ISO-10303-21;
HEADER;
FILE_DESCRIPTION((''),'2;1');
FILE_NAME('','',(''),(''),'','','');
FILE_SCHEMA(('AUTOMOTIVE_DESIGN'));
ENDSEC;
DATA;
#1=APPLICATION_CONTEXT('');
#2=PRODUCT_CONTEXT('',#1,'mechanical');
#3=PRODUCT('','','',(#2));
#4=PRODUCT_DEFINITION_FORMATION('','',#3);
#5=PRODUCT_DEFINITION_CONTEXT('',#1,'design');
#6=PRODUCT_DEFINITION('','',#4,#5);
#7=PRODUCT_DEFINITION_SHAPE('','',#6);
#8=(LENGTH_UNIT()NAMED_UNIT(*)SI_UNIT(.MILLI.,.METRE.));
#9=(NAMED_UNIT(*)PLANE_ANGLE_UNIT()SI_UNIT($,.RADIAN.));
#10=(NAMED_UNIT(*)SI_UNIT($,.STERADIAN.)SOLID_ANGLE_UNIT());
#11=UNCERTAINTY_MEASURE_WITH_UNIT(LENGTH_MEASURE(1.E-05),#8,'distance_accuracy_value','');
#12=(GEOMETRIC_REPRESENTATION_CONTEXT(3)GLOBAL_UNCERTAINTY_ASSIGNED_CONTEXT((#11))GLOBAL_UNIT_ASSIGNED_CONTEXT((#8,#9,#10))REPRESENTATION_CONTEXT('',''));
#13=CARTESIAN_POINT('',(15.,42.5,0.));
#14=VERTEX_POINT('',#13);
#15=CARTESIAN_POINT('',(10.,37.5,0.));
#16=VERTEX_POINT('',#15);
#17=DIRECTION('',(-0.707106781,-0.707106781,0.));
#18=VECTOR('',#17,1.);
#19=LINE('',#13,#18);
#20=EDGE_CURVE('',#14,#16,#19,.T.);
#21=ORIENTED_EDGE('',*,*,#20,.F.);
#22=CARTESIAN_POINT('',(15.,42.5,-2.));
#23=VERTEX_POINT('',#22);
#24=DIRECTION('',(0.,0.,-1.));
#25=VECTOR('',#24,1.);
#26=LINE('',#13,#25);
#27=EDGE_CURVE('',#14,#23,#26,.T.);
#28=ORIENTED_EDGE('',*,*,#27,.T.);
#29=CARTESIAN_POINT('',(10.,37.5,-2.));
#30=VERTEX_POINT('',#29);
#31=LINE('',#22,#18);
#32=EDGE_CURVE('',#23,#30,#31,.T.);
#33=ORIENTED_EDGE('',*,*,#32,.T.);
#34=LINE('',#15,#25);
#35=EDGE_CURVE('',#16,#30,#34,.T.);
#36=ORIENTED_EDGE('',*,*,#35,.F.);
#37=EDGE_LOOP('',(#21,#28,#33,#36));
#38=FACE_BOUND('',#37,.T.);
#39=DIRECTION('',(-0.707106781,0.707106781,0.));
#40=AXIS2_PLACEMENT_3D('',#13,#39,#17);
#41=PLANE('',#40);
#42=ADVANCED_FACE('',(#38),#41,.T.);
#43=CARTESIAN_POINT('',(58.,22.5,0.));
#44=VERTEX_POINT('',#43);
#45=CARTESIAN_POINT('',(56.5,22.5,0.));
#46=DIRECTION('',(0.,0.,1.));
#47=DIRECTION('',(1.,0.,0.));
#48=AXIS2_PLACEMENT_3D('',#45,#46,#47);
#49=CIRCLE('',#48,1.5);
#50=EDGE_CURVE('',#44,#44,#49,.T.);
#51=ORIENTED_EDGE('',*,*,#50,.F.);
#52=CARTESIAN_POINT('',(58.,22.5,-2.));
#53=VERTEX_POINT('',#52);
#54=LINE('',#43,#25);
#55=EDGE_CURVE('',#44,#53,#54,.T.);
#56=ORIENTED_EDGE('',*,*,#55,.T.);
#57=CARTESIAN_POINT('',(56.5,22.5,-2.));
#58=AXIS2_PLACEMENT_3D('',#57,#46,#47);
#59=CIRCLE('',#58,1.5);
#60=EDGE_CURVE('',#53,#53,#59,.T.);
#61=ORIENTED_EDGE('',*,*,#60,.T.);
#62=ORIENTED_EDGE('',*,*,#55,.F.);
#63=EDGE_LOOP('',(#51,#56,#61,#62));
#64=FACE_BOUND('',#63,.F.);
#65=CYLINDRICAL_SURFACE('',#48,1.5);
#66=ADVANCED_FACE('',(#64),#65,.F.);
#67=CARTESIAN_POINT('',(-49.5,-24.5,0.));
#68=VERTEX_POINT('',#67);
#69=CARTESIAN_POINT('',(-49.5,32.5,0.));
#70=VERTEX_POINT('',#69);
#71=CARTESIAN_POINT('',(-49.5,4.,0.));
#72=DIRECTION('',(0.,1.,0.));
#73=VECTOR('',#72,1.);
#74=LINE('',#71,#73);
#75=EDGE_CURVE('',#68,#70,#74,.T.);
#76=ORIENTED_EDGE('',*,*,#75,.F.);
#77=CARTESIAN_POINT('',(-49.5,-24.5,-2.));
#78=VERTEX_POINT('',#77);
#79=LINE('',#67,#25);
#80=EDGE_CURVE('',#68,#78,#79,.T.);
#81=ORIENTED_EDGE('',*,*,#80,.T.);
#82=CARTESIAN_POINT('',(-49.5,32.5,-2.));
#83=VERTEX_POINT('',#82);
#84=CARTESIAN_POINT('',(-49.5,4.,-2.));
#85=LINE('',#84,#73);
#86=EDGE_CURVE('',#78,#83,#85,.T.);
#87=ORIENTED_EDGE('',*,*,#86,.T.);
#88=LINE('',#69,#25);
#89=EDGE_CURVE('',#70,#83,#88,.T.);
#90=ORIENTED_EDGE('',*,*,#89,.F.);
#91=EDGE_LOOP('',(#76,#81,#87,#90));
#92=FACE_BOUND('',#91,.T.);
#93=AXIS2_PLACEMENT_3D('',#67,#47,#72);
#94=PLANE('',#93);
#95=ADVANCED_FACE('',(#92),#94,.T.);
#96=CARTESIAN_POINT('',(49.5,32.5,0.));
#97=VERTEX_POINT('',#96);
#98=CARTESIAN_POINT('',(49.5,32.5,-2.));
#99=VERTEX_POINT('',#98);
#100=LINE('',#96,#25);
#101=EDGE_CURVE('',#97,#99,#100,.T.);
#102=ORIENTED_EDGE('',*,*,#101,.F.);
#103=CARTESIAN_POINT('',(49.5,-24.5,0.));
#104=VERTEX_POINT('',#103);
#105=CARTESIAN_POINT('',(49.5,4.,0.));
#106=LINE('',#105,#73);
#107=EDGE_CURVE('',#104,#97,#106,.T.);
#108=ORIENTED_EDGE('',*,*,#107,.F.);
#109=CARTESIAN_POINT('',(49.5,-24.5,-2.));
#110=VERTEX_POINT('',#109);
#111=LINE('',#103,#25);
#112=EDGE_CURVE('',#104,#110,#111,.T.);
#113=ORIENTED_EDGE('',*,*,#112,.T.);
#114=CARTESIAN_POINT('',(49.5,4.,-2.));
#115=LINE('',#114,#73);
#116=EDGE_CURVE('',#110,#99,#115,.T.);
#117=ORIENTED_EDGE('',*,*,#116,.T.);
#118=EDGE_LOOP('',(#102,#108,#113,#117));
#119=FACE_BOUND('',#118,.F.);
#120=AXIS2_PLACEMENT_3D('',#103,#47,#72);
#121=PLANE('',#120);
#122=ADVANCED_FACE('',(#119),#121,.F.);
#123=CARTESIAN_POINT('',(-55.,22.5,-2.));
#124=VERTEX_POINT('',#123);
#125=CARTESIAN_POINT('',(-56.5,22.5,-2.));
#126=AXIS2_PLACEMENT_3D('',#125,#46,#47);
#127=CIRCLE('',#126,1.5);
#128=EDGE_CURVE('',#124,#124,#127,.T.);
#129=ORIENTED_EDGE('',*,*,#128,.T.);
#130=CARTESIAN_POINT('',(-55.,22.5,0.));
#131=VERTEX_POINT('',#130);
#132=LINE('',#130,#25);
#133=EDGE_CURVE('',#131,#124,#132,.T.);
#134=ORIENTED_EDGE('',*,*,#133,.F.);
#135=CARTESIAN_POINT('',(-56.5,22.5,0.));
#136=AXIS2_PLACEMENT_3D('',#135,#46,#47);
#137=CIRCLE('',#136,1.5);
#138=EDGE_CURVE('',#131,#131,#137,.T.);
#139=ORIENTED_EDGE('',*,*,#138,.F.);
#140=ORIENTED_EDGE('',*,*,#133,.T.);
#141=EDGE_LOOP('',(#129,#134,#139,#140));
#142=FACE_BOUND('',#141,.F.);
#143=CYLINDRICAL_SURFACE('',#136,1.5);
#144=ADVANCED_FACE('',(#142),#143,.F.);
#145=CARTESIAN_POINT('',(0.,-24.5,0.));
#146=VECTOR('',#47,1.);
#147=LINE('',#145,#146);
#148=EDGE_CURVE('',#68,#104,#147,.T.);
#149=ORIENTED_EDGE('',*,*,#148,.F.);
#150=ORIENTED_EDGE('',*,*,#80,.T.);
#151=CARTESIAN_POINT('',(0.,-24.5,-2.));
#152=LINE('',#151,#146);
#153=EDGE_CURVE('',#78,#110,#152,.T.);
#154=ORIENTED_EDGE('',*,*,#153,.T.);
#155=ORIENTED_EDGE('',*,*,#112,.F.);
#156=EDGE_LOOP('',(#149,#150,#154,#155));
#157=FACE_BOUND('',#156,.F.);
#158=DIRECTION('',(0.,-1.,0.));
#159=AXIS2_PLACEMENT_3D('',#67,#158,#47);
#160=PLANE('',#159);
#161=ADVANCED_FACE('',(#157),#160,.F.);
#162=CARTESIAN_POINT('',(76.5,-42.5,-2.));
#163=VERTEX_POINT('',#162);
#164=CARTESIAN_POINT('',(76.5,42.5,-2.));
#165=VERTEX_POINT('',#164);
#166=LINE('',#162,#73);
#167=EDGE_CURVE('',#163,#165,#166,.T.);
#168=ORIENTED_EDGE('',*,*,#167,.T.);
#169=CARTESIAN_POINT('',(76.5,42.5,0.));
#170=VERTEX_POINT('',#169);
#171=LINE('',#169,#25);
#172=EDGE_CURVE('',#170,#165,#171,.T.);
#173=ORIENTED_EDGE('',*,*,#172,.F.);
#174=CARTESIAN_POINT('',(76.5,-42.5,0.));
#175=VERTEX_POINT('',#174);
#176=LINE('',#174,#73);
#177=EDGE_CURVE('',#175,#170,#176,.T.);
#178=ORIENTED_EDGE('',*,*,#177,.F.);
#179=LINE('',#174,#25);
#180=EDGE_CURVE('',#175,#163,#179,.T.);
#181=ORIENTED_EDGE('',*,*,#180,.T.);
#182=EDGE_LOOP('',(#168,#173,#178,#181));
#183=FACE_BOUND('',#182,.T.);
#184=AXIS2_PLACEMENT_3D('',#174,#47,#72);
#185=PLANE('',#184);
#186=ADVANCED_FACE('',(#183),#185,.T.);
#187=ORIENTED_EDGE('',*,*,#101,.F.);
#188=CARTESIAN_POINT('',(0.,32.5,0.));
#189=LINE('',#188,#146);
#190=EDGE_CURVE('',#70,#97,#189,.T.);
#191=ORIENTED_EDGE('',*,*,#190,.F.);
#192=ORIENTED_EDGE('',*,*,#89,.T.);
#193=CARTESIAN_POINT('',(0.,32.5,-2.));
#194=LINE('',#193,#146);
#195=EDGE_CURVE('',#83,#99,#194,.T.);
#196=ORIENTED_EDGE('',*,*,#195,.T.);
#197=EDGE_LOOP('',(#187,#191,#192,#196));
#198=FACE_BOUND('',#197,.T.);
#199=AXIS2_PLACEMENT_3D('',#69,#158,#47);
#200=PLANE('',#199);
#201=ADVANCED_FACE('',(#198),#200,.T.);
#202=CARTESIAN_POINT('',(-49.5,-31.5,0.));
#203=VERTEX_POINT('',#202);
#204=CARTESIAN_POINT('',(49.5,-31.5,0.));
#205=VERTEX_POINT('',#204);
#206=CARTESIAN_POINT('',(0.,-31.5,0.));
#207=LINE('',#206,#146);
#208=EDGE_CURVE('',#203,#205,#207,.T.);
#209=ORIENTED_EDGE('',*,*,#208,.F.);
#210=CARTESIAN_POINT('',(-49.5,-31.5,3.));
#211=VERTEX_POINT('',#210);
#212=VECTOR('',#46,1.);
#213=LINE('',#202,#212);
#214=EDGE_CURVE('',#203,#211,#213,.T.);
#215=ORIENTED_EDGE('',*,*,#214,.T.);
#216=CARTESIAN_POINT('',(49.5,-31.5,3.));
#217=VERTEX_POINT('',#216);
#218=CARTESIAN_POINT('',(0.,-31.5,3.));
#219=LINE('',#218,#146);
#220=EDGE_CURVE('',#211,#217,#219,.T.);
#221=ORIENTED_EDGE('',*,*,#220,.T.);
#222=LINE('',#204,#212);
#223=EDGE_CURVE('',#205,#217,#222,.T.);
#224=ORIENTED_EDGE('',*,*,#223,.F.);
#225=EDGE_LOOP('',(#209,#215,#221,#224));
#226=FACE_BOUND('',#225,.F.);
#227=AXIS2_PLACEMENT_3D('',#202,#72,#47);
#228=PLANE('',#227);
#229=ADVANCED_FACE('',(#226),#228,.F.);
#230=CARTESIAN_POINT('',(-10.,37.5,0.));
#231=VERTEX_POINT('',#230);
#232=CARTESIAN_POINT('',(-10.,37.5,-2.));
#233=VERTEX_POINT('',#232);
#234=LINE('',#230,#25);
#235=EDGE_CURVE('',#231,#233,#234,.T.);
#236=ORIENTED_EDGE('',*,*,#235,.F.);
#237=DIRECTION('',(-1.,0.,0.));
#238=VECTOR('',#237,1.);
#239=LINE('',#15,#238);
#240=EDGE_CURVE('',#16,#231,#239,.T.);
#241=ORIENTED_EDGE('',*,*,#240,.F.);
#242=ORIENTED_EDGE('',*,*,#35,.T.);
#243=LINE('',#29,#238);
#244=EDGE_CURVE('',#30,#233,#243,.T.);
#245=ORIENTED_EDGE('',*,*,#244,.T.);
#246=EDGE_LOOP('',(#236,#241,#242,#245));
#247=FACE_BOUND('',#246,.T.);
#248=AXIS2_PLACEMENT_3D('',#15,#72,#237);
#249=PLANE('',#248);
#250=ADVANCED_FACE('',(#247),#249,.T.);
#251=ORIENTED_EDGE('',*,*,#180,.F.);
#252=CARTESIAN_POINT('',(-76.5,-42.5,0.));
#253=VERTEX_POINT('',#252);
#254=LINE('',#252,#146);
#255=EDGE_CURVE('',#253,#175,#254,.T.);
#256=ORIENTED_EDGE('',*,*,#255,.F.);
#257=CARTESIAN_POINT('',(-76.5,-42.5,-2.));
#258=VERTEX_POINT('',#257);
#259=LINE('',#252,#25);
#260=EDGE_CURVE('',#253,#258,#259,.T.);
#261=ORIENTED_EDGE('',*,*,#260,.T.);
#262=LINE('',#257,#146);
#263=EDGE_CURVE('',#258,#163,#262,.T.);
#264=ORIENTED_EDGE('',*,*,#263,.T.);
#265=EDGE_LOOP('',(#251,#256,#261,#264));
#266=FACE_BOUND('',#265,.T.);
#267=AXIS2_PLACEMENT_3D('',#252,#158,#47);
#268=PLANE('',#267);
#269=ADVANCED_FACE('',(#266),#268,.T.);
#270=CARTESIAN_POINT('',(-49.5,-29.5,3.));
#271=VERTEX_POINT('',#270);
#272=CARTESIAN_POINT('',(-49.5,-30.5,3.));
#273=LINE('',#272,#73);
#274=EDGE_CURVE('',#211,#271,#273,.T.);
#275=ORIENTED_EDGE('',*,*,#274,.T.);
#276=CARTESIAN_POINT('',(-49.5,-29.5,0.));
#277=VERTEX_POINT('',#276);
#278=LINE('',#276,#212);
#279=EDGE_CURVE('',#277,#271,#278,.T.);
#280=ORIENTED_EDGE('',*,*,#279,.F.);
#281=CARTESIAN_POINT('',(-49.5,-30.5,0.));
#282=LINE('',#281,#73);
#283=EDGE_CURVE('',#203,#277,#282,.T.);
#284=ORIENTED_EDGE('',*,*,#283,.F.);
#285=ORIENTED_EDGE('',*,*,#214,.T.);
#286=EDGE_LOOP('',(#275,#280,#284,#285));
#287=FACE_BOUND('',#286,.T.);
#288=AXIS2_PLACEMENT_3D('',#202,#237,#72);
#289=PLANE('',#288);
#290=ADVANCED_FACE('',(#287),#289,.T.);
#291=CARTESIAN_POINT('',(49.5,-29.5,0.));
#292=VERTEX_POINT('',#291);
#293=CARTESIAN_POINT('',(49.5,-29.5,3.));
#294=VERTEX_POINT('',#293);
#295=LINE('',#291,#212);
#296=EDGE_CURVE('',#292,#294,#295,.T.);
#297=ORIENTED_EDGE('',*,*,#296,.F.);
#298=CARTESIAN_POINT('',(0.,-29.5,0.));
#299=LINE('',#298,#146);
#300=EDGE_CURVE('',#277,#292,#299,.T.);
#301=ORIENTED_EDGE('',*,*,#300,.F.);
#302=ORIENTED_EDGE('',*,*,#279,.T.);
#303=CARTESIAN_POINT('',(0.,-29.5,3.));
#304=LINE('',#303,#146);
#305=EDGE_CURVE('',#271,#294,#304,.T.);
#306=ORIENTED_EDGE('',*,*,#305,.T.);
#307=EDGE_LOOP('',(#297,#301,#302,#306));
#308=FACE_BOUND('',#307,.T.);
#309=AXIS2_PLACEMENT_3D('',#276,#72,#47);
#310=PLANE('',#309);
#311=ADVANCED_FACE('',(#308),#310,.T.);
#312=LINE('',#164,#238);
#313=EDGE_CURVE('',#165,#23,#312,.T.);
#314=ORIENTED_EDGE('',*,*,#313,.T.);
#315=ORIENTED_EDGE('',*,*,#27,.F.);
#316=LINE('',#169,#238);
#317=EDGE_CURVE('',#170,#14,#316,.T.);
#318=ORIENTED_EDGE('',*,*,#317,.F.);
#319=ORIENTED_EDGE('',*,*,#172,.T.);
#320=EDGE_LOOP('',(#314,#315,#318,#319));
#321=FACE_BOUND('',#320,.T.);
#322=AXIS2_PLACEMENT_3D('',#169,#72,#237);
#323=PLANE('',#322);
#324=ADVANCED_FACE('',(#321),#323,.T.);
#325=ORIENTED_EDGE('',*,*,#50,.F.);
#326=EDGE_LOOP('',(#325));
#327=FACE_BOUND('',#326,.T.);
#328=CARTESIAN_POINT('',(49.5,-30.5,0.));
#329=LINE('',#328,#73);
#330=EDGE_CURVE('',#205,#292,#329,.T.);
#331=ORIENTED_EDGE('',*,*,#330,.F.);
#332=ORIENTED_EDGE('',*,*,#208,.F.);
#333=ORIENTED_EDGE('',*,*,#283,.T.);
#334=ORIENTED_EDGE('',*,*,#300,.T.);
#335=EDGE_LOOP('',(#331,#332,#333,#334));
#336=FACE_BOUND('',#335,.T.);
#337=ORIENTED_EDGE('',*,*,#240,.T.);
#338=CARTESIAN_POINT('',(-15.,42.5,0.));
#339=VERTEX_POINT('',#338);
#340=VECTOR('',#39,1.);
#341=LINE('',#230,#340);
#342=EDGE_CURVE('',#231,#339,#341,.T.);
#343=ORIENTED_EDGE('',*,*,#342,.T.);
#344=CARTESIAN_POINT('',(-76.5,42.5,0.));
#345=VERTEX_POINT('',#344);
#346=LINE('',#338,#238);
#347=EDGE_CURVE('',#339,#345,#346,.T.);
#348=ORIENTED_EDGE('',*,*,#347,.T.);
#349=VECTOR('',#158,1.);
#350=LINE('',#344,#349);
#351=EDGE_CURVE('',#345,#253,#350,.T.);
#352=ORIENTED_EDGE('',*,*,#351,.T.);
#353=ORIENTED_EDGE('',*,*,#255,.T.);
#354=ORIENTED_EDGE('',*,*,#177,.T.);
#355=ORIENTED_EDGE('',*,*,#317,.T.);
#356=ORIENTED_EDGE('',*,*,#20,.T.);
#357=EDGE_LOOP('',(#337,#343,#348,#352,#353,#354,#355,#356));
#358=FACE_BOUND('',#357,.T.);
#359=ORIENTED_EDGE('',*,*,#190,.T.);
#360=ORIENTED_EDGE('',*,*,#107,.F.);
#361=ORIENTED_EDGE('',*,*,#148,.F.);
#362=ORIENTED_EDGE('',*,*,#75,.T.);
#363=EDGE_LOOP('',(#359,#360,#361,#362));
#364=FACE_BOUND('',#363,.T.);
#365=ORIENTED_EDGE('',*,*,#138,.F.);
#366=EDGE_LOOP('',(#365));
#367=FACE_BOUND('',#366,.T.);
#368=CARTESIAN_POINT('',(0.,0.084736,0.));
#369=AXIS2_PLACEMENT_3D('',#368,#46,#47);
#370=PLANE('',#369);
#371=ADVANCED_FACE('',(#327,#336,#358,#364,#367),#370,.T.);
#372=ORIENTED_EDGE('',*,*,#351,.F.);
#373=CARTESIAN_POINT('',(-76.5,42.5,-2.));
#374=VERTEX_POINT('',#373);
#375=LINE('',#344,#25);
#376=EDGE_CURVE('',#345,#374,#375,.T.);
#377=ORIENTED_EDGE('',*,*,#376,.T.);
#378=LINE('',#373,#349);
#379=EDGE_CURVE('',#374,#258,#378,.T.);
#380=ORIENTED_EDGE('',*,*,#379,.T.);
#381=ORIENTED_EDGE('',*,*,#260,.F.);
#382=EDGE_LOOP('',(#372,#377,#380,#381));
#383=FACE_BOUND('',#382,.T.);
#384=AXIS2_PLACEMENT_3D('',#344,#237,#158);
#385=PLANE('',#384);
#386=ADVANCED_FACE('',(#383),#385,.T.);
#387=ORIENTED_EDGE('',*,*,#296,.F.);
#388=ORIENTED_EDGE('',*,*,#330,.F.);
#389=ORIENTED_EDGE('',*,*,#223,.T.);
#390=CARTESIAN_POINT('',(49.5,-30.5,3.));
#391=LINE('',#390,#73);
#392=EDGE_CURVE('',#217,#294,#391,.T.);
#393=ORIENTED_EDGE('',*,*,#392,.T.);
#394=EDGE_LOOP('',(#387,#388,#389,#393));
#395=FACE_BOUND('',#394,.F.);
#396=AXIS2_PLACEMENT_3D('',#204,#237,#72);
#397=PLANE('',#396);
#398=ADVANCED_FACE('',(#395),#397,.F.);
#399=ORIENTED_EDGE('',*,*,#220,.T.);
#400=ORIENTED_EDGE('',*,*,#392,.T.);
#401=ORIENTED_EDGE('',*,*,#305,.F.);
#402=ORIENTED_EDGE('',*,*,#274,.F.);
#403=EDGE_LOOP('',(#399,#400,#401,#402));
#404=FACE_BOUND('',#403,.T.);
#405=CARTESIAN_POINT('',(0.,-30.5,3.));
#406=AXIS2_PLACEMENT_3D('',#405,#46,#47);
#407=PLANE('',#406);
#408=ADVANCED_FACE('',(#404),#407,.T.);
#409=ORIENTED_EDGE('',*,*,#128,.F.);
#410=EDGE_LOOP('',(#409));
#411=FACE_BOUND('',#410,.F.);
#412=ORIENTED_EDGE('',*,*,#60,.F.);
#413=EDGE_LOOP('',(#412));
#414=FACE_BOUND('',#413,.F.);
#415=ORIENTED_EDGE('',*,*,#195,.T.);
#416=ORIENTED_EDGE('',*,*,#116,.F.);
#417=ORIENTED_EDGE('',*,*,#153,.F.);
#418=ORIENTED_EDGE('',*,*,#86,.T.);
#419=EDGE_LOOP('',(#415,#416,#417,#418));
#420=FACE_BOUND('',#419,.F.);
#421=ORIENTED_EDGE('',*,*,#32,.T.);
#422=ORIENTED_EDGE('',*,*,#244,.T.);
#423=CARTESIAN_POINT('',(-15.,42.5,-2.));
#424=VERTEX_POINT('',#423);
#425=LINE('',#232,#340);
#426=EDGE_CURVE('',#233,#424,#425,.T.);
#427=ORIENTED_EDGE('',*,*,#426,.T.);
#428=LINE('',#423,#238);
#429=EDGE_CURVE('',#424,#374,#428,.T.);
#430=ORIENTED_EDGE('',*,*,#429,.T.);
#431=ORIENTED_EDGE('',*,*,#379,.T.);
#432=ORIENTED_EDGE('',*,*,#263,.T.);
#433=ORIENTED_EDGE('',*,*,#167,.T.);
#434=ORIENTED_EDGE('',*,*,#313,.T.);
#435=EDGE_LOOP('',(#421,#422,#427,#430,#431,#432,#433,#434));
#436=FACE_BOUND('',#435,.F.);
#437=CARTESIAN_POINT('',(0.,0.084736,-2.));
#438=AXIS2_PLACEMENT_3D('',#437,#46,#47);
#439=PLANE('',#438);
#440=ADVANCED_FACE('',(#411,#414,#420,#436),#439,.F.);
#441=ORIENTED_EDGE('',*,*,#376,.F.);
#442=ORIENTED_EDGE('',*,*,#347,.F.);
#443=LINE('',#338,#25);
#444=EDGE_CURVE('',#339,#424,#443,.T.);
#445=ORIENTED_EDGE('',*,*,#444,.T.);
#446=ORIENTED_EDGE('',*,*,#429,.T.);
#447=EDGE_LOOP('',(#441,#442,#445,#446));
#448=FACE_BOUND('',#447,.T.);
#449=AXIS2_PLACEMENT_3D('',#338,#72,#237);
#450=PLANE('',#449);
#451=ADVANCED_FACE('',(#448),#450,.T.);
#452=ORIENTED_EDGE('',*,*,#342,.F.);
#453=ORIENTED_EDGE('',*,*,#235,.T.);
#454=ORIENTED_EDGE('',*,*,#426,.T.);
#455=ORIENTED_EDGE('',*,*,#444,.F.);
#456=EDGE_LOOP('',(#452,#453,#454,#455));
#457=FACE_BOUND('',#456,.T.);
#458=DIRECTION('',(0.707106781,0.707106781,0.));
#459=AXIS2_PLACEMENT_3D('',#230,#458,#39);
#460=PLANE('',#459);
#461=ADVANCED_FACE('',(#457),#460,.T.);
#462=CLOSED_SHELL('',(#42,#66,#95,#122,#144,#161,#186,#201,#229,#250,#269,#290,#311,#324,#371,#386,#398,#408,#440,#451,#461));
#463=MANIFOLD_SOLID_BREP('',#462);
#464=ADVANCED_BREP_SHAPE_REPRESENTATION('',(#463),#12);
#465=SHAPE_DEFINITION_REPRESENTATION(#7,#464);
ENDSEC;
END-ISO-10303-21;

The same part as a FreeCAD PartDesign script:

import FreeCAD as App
import Part
import Sketcher
Q = App.Units.Quantity

doc = App.newDocument("Part")
body = doc.addObject("PartDesign::Body", "Body")

# Sketch on XY plane
sketch1 = body.newObject("Sketcher::SketchObject", "Sketch")
sketch1.AttachmentSupport = (doc.getObject("XY_Plane"), [""])
sketch1.MapMode = "FlatFace"
sketch1.addGeometry([
    Part.LineSegment(App.Vector(-15, 42.5, 0), App.Vector(-76.5, 42.5, 0)),  # 0
    Part.LineSegment(App.Vector(-76.5, 42.5, 0), App.Vector(-76.5, -42.5, 0)),  # 1
    Part.LineSegment(App.Vector(-76.5, -42.5, 0), App.Vector(76.5, -42.5, 0)),  # 2
    Part.LineSegment(App.Vector(76.5, -42.5, 0), App.Vector(76.5, 42.5, 0)),  # 3
    Part.LineSegment(App.Vector(76.5, 42.5, 0), App.Vector(15, 42.5, 0)),  # 4
    Part.LineSegment(App.Vector(15, 42.5, 0), App.Vector(10, 37.5, 0)),  # 5
    Part.LineSegment(App.Vector(10, 37.5, 0), App.Vector(-10, 37.5, 0)),  # 6
    Part.LineSegment(App.Vector(-10, 37.5, 0), App.Vector(-15, 42.5, 0)),  # 7
    Part.Circle(App.Vector(-56.5, 22.5, 0), App.Vector(0, 0, 1), 1.5),  # 8
    Part.LineSegment(App.Vector(49.5, -24.5, 0), App.Vector(-49.5, -24.5, 0)),  # 9
    Part.LineSegment(App.Vector(-49.5, -24.5, 0), App.Vector(-49.5, 32.5, 0)),  # 10
    Part.LineSegment(App.Vector(-49.5, 32.5, 0), App.Vector(49.5, 32.5, 0)),  # 11
    Part.LineSegment(App.Vector(49.5, 32.5, 0), App.Vector(49.5, -24.5, 0)),  # 12
    Part.Circle(App.Vector(56.5, 22.5, 0), App.Vector(0, 0, 1), 1.5),  # 13
], False)
sketch1.addConstraint([
    Sketcher.Constraint("Coincident", 0, 2, 1, 1),
    Sketcher.Constraint("Coincident", 1, 2, 2, 1),
    Sketcher.Constraint("Coincident", 2, 2, 3, 1),
    Sketcher.Constraint("Coincident", 3, 2, 4, 1),
    Sketcher.Constraint("Coincident", 4, 2, 5, 1),
    Sketcher.Constraint("Coincident", 5, 2, 6, 1),
    Sketcher.Constraint("Coincident", 6, 2, 7, 1),
    Sketcher.Constraint("Coincident", 7, 2, 0, 1),
    Sketcher.Constraint("Coincident", 9, 2, 10, 1),
    Sketcher.Constraint("Coincident", 10, 2, 11, 1),
    Sketcher.Constraint("Coincident", 11, 2, 12, 1),
    Sketcher.Constraint("Coincident", 12, 2, 9, 1),
    Sketcher.Constraint("Horizontal", 0),
    Sketcher.Constraint("Vertical", 1),
    Sketcher.Constraint("Horizontal", 2),
    Sketcher.Constraint("Vertical", 3),
    Sketcher.Constraint("Horizontal", 4),
    Sketcher.Constraint("Horizontal", 6),
    Sketcher.Constraint("Horizontal", 9),
    Sketcher.Constraint("Vertical", 10),
    Sketcher.Constraint("Horizontal", 11),
    Sketcher.Constraint("Vertical", 12),
    Sketcher.Constraint("Equal", 8, 13),
    Sketcher.Constraint("Symmetric", 0, 2, 2, 2, -1, 1),
    Sketcher.Constraint("Symmetric", 8, 3, 13, 3, -2),
    Sketcher.Constraint("Symmetric", 4, 2, 7, 2, -2),
    Sketcher.Constraint("Perpendicular", 5, 7),
    Sketcher.Constraint("Equal", 5, 7),
    Sketcher.Constraint("Diameter", 8, Q("3 mm")),
    Sketcher.Constraint("DistanceX", 2, 1, 2, 2, Q("153 mm")),
    Sketcher.Constraint("DistanceX", 6, 2, 6, 1, Q("20 mm")),
    Sketcher.Constraint("DistanceX", 9, 2, 9, 1, Q("99 mm")),
    Sketcher.Constraint("DistanceY", 1, 2, 1, 1, Q("85 mm")),
    Sketcher.Constraint("DistanceY", 10, 1, 10, 2, Q("57 mm")),
    Sketcher.Constraint("DistanceX", 0, 2, 0, 1, Q("61.5 mm")),
    Sketcher.Constraint("DistanceX", 8, 3, 13, 3, Q("113 mm")),
    Sketcher.Constraint("DistanceY", 8, 3, 0, 2, Q("20 mm")),
    Sketcher.Constraint("DistanceX", 1, 2, 9, 2, Q("27 mm")),
    Sketcher.Constraint("DistanceY", 1, 2, 9, 2, Q("18 mm")),
])
pad1 = body.newObject("PartDesign::Pad", "Pad")
pad1.Profile = sketch1
pad1.Length = 2
pad1.Reversed = True

# Sketch on XY plane
sketch2 = body.newObject("Sketcher::SketchObject", "Sketch001")
sketch2.AttachmentSupport = (doc.getObject("XY_Plane"), [""])
sketch2.MapMode = "FlatFace"
sketch2.addGeometry([
    Part.LineSegment(App.Vector(-49.5, -29.5, 0), App.Vector(-49.5, -31.5, 0)),
    Part.LineSegment(App.Vector(-49.5, -31.5, 0), App.Vector(49.5, -31.5, 0)),
    Part.LineSegment(App.Vector(49.5, -31.5, 0), App.Vector(49.5, -29.5, 0)),
    Part.LineSegment(App.Vector(49.5, -29.5, 0), App.Vector(-49.5, -29.5, 0)),
], False)
sketch2.addConstraint([
    Sketcher.Constraint("Coincident", 0, 2, 1, 1),
    Sketcher.Constraint("Coincident", 1, 2, 2, 1),
    Sketcher.Constraint("Coincident", 2, 2, 3, 1),
    Sketcher.Constraint("Coincident", 3, 2, 0, 1),
    Sketcher.Constraint("Vertical", 0),
    Sketcher.Constraint("Horizontal", 1),
    Sketcher.Constraint("Vertical", 2),
    Sketcher.Constraint("Horizontal", 3),
    Sketcher.Constraint("DistanceX", 1, 1, 1, 2, Q("99 mm")),
    Sketcher.Constraint("DistanceY", 0, 2, 0, 1, Q("2 mm")),
    Sketcher.Constraint("DistanceX", 0, 2, -1, 1, Q("49.5 mm")),
    Sketcher.Constraint("DistanceY", 0, 2, -1, 1, Q("31.5 mm")),
])
pad2 = body.newObject("PartDesign::Pad", "Pad001")
pad2.Profile = sketch2
pad2.Length = 3

doc.recompute()
